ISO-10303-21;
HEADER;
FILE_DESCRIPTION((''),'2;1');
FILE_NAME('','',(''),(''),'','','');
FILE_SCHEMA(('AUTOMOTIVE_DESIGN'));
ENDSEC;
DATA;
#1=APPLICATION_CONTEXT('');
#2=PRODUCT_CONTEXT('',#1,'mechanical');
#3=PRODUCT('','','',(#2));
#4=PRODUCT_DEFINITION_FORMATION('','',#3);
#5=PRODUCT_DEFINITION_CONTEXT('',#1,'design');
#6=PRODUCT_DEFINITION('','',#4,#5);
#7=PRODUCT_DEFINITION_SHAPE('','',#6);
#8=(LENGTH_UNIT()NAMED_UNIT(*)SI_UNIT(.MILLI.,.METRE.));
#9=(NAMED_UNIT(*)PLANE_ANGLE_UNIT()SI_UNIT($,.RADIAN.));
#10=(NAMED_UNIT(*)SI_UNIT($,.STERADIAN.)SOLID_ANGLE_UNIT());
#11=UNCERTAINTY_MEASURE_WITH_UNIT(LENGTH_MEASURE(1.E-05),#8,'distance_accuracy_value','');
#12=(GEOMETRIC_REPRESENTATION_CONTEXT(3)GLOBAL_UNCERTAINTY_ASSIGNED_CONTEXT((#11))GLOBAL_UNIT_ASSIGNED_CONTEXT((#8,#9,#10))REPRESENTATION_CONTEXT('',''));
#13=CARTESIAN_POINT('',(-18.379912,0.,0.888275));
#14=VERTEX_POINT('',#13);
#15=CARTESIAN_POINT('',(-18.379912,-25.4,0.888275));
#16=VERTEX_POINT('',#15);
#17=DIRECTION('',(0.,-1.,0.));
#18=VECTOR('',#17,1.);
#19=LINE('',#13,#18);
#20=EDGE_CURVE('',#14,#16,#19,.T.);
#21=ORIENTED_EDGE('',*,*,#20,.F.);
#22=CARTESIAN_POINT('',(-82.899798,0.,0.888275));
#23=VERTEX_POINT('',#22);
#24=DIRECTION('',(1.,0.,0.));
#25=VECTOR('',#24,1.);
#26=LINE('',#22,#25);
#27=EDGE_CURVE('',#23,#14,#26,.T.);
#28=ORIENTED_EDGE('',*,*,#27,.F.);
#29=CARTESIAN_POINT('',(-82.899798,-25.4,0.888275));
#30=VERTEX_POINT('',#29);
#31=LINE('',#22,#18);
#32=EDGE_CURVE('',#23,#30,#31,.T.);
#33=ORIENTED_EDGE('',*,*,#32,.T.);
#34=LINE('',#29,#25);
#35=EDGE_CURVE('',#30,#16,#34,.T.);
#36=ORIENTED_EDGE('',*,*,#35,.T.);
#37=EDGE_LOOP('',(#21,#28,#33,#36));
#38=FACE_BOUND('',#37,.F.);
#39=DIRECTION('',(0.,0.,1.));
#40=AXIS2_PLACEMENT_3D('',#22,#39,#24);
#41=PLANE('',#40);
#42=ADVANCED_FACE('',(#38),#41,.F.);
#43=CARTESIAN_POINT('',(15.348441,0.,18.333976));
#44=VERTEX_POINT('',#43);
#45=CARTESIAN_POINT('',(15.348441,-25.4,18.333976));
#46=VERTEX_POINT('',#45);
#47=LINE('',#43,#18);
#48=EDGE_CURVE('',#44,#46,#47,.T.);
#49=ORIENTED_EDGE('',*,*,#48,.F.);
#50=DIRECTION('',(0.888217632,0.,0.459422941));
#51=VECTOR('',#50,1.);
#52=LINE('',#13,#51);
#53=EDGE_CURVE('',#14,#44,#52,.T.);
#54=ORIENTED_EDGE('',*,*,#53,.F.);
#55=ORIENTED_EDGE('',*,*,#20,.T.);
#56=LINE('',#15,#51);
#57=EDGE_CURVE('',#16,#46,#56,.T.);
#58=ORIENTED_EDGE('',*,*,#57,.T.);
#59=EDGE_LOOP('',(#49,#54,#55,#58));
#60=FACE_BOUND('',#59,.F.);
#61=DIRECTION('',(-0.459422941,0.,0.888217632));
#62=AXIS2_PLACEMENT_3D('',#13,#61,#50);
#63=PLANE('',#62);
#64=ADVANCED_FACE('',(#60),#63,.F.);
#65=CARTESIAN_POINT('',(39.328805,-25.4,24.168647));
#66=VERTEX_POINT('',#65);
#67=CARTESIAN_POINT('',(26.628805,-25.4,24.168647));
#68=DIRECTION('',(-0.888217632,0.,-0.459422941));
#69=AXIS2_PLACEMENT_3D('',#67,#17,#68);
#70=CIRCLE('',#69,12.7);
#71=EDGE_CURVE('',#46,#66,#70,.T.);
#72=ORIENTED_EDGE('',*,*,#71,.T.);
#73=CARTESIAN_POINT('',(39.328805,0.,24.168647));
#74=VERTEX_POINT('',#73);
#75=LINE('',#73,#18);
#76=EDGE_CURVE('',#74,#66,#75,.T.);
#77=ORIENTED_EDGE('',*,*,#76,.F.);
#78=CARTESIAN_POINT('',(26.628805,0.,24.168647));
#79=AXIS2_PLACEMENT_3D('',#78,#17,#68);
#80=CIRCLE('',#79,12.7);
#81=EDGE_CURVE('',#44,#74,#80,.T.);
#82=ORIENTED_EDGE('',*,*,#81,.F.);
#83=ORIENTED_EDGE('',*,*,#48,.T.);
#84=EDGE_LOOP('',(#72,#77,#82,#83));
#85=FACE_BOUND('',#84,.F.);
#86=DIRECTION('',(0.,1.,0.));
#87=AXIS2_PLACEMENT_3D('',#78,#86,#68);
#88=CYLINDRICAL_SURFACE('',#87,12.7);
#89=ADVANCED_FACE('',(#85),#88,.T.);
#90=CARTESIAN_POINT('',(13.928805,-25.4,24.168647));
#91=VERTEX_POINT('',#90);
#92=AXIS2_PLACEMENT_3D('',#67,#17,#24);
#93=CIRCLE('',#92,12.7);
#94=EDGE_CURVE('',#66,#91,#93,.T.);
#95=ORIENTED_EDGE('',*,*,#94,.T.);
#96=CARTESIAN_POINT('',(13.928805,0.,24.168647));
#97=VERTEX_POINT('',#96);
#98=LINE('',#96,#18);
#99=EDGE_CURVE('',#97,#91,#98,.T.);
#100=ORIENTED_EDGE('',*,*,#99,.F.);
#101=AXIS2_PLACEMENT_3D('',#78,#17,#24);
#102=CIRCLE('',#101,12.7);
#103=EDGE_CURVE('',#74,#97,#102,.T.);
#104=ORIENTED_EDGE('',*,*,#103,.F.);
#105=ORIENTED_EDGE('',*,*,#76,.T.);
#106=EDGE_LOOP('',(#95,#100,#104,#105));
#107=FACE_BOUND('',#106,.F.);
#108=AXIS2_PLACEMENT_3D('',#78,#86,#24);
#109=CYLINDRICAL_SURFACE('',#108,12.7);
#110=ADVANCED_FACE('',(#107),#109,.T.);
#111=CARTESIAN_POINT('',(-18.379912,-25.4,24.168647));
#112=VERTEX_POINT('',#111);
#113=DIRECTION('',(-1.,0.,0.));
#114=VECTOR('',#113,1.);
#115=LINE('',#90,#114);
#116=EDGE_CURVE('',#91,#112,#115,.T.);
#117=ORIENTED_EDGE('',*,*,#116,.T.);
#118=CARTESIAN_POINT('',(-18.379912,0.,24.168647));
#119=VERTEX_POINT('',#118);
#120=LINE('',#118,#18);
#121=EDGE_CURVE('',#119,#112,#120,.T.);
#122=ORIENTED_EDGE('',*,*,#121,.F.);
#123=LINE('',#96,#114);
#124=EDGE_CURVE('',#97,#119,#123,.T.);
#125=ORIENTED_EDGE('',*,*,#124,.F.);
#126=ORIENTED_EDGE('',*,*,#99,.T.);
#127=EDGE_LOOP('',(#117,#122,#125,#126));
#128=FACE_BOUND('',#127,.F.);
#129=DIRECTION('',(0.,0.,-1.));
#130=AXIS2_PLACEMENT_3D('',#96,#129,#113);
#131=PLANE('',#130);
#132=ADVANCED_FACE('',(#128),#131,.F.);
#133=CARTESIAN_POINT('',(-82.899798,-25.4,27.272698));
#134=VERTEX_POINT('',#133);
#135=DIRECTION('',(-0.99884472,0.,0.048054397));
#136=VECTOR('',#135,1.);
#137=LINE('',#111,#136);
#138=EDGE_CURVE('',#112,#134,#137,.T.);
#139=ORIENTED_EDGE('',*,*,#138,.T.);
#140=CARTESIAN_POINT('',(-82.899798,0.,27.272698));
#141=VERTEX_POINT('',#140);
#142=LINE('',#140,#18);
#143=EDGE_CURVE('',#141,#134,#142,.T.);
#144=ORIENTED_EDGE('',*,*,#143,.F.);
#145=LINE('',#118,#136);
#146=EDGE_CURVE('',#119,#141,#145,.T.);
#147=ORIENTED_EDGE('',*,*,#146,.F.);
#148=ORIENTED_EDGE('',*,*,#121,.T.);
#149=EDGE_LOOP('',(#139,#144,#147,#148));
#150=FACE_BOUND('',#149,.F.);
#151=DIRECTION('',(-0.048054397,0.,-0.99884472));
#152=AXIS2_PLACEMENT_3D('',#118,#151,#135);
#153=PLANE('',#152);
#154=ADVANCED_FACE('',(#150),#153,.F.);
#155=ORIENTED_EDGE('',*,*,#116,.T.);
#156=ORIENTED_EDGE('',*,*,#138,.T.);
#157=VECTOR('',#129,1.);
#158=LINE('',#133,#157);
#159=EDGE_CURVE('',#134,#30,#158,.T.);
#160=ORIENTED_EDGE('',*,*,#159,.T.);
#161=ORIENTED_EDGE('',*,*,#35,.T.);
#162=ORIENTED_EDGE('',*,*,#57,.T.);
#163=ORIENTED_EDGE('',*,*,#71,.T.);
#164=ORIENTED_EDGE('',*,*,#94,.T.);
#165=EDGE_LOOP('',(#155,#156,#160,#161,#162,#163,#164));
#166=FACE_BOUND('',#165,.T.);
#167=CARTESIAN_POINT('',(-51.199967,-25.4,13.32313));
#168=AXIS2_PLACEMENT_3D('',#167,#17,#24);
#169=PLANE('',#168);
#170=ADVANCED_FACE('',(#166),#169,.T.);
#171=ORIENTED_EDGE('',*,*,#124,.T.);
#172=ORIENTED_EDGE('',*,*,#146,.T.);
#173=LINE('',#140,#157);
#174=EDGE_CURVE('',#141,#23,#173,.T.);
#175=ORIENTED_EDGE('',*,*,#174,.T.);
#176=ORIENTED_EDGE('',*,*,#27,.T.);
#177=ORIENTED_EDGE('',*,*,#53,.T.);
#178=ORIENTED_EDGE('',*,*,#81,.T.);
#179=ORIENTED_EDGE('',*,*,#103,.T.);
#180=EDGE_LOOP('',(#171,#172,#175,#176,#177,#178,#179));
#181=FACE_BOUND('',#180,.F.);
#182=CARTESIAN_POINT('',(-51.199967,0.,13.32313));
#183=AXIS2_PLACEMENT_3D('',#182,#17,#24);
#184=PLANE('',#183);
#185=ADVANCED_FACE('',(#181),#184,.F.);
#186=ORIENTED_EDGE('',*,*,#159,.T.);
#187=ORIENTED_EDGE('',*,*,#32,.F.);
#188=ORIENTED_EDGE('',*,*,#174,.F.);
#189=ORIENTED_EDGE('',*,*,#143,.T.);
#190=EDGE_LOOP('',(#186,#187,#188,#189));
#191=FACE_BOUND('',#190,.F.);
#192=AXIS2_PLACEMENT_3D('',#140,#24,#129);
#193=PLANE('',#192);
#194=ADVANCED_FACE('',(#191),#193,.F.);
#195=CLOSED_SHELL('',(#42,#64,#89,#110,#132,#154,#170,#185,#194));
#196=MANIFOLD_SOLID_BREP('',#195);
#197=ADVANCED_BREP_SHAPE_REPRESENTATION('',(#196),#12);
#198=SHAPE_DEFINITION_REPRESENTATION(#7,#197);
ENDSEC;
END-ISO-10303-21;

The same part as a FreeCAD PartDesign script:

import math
import FreeCAD as App
import Part
import Sketcher
Q = App.Units.Quantity

doc = App.newDocument("Part")
body = doc.addObject("PartDesign::Body", "Body")

sketch1 = body.newObject("Sketcher::SketchObject", "Sketch")
sketch1.AttachmentSupport = (doc.getObject("XZ_Plane"), [""])
sketch1.MapMode = "FlatFace"
sketch1.addGeometry(Part.LineSegment(App.Vector(-83, 27, 0), App.Vector(-83, 1, 0)), False)
sketch1.addGeometry(Part.LineSegment(App.Vector(-83, 1, 0), App.Vector(-18, 1, 0)), False)
sketch1.addGeometry(Part.LineSegment(App.Vector(-18, 1, 0), App.Vector(15, 18, 0)), False)
sketch1.addGeometry(Part.ArcOfCircle(Part.Circle(App.Vector(27, 24, 0), App.Vector(0, 0, 1), 13), math.radians(-153), math.radians(0)), False)
sketch1.addGeometry(Part.ArcOfCircle(Part.Circle(App.Vector(27, 24, 0), App.Vector(0, 0, 1), 13), math.radians(0), math.radians(180)), False)
sketch1.addGeometry(Part.LineSegment(App.Vector(14, 24, 0), App.Vector(-18, 24, 0)), False)
sketch1.addGeometry(Part.LineSegment(App.Vector(-18, 24, 0), App.Vector(-83, 27, 0)), False)
sketch1.addConstraint(Sketcher.Constraint("Coincident", 0, 2, 1, 1))
sketch1.addConstraint(Sketcher.Constraint("Coincident", 1, 2, 2, 1))
sketch1.addConstraint(Sketcher.Constraint("Coincident", 2, 2, 3, 1))
sketch1.addConstraint(Sketcher.Constraint("Tangent", 3, 2, 4, 1))
sketch1.addConstraint(Sketcher.Constraint("Coincident", 4, 2, 5, 1))
sketch1.addConstraint(Sketcher.Constraint("Coincident", 5, 2, 6, 1))
sketch1.addConstraint(Sketcher.Constraint("Coincident", 6, 2, 0, 1))
sketch1.addConstraint(Sketcher.Constraint("Vertical", 0))
sketch1.addConstraint(Sketcher.Constraint("Horizontal", 1))
sketch1.addConstraint(Sketcher.Constraint("Horizontal", 5))
sketch1.addConstraint(Sketcher.Constraint("Equal", 3, 4))
sketch1.addConstraint(Sketcher.Constraint("Horizontal", 4, 3, 3, 2))
sketch1.addConstraint(Sketcher.Constraint("Horizontal", 3, 2, 4, 2))
sketch1.addConstraint(Sketcher.Constraint("Vertical", 1, 2, 5, 2))
sketch1.addConstraint(Sketcher.Constraint("Radius", 3, Q("0.5 in")))
sketch1.addConstraint(Sketcher.Constraint("DistanceY", 1, 2, 2, 2, 17.445701))
sketch1.addConstraint(Sketcher.Constraint("Distance", 6, 64.59451))
sketch1.addConstraint(Sketcher.Constraint("DistanceX", 1, 1, 1, 2, 64.519886))
sketch1.addConstraint(Sketcher.Constraint("DistanceX", 5, 2, 5, 1, 32.308717))
sketch1.addConstraint(Sketcher.Constraint("DistanceY", 0, 2, 0, 1, 26.384422))
sketch1.addConstraint(Sketcher.Constraint("DistanceX", 1, 2, -1, 1, 18.379912))
sketch1.addConstraint(Sketcher.Constraint("DistanceY", -1, 1, 3, 3, 24.168647))
pad1 = body.newObject("PartDesign::Pad", "Pad")
pad1.Profile = sketch1
pad1.Length = Q("1 in")

doc.recompute()
